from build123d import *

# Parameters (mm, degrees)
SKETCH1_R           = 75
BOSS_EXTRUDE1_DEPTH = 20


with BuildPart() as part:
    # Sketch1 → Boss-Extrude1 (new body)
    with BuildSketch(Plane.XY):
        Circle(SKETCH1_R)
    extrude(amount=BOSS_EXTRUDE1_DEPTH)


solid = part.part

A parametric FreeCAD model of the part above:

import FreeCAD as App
import Part
import Sketcher

V = App.Vector
Q = App.Units.Quantity

doc = App.newDocument("Part")
params = doc.addObject("Spreadsheet::Sheet", "Params")
for row, (alias, value) in enumerate([
    ("sketch1_diameter", "150 mm"),
    ("pad1_length", "20 mm"),
], start=1):
    params.set(f"A{row}", alias)
    params.set(f"B{row}", "=" + value)
    params.setAlias(f"B{row}", alias)

body = doc.addObject("PartDesign::Body", "Body")

# Sketch on XY plane
sketch1 = body.newObject("Sketcher::SketchObject", "Sketch")
sketch1.AttachmentSupport = (doc.getObject("XY_Plane"), [""])
sketch1.MapMode = "FlatFace"
sketch1.addGeometry(Part.Circle(V(0, 0, 0), V(0, 0, 1), 75), False)
sketch1.addConstraint([
    Sketcher.Constraint("Coincident", 0, 3, -1, 1),
    Sketcher.Constraint("Diameter", 0, Q("150 mm")),
])
sketch1.setExpression("Constraints[1]", "Params.sketch1_diameter")
pad1 = body.newObject("PartDesign::Pad", "Pad")
pad1.Profile = sketch1
pad1.setExpression("Length", "Params.pad1_length")

doc.recompute()
